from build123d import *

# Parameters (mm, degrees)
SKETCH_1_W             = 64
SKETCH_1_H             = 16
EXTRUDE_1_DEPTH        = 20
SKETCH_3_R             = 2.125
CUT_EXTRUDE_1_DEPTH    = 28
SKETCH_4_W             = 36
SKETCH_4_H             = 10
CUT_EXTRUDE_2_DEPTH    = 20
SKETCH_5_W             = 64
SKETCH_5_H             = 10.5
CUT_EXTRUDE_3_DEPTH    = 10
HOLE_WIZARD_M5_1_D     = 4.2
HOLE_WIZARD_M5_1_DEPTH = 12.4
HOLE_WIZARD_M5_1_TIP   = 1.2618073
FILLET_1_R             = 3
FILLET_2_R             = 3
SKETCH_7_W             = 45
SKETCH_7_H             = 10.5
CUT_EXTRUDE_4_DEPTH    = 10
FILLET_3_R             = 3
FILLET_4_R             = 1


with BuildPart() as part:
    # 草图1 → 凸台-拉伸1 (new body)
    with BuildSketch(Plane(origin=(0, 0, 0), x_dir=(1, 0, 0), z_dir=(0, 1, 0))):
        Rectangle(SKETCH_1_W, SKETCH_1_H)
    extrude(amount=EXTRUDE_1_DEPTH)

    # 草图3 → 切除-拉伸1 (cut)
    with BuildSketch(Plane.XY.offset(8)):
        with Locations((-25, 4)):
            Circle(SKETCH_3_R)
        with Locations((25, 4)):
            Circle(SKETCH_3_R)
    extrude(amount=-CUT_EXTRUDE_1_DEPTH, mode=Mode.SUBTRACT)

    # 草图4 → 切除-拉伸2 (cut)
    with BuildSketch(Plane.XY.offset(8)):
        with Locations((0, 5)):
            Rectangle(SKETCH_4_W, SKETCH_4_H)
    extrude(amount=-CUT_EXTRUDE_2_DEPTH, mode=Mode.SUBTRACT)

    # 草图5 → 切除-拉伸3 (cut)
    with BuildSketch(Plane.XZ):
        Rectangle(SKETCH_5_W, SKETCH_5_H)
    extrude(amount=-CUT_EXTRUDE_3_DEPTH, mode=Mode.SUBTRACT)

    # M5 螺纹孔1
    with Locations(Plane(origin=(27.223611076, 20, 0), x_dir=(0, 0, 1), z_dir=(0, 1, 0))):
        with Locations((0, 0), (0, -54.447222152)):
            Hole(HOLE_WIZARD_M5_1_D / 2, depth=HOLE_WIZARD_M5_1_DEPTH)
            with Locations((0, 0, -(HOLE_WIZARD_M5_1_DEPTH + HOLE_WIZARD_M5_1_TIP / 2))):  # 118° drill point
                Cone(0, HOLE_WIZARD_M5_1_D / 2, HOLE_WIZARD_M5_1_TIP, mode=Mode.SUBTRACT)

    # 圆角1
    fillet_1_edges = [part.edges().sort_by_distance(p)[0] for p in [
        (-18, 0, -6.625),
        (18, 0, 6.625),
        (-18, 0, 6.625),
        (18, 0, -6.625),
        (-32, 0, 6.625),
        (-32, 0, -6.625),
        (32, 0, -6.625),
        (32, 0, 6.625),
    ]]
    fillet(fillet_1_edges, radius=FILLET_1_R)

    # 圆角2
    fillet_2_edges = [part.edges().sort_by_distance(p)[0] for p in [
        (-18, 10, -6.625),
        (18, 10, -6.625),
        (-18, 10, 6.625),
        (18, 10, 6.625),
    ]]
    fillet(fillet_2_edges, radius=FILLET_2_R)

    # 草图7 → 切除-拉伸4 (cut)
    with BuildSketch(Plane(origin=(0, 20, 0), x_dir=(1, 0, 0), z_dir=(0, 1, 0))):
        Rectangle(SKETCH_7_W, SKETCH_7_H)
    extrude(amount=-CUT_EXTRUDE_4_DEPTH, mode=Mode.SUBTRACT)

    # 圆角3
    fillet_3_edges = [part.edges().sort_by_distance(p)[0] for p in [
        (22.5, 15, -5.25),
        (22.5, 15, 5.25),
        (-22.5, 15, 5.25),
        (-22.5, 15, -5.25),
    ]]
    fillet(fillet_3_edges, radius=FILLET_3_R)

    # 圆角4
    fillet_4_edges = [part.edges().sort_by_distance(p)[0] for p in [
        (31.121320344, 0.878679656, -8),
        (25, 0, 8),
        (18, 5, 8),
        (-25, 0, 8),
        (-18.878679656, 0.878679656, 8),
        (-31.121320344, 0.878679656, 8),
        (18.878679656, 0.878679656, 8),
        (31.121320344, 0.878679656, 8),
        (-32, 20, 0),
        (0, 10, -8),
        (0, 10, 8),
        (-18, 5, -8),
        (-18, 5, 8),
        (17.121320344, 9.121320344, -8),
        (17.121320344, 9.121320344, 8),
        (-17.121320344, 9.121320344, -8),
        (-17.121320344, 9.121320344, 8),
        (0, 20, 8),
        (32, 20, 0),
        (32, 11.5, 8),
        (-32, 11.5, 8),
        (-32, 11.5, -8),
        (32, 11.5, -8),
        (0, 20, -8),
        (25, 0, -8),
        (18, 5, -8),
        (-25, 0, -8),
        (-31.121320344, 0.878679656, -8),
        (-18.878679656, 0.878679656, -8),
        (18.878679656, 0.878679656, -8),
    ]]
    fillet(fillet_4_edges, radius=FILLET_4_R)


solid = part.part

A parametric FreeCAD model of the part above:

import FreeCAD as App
import Part
import Sketcher


def edges_at(feature, points):
    """Names of the edges that pass closest to the given points."""
    edges = feature.Shape.Edges
    near = lambda p: min(range(len(edges)), key=lambda i: edges[i].distToShape(Part.Vertex(*p))[0])
    return sorted({f"Edge{near(p) + 1}" for p in points})

doc = App.newDocument("Part")
body = doc.addObject("PartDesign::Body", "Body")

# Sketch on XZ plane
sketch1 = doc.addObject("Sketcher::SketchObject", "Sketch")
body.addObject(sketch1)
sketch1.AttachmentSupport = (doc.XZ_Plane, [""])
sketch1.MapMode = "FlatFace"
sketch1.addGeometry(Part.LineSegment(App.Vector(-32, -8, 0), App.Vector(-32, 8, 0)), False)
sketch1.addGeometry(Part.LineSegment(App.Vector(-32, 8, 0), App.Vector(32, 8, 0)), False)
sketch1.addGeometry(Part.LineSegment(App.Vector(32, 8, 0), App.Vector(32, -8, 0)), False)
sketch1.addGeometry(Part.LineSegment(App.Vector(32, -8, 0), App.Vector(-32, -8, 0)), False)
sketch1.addConstraint(Sketcher.Constraint("Coincident", 0, 2, 1, 1))
sketch1.addConstraint(Sketcher.Constraint("Coincident", 1, 2, 2, 1))
sketch1.addConstraint(Sketcher.Constraint("Coincident", 2, 2, 3, 1))
sketch1.addConstraint(Sketcher.Constraint("Coincident", 3, 2, 0, 1))
sketch1.addConstraint(Sketcher.Constraint("Vertical", 0))
sketch1.addConstraint(Sketcher.Constraint("Horizontal", 1))
sketch1.addConstraint(Sketcher.Constraint("Vertical", 2))
sketch1.addConstraint(Sketcher.Constraint("Horizontal", 3))
sketch1.addConstraint(Sketcher.Constraint("Symmetric", 0, 2, 2, 2, -1, 1))
sketch1.addConstraint(Sketcher.Constraint("DistanceX", 1, 1, 1, 2, 64.0))
sketch1.addConstraint(Sketcher.Constraint("DistanceY", 0, 1, 0, 2, 16.0))
pad1 = doc.addObject("PartDesign::Pad", "Pad")
body.addObject(pad1)
pad1.Profile = sketch1
pad1.Length = 20
pad1.Reversed = True

# Sketch on XY plane
sketch2 = doc.addObject("Sketcher::SketchObject", "Sketch001")
body.addObject(sketch2)
sketch2.AttachmentSupport = (doc.XY_Plane, [""])
sketch2.MapMode = "FlatFace"
sketch2.AttachmentOffset = App.Placement(App.Vector(0, 0, 8), App.Rotation())
sketch2.addGeometry(Part.Circle(App.Vector(-25, 4, 0), App.Vector(0, 0, 1), 2.1), False)
sketch2.addGeometry(Part.Circle(App.Vector(25, 4, 0), App.Vector(0, 0, 1), 2.1), False)
sketch2.addConstraint(Sketcher.Constraint("Equal", 0, 1))
sketch2.addConstraint(Sketcher.Constraint("Symmetric", 0, 3, 1, 3, -2))
sketch2.addConstraint(Sketcher.Constraint("Diameter", 0, 4.25))
sketch2.addConstraint(Sketcher.Constraint("DistanceX", 0, 3, -1, 1, 25.0))
sketch2.addConstraint(Sketcher.Constraint("DistanceY", -1, 1, 0, 3, 4.0))
pocket1 = doc.addObject("PartDesign::Pocket", "Pocket")
body.addObject(pocket1)
pocket1.Profile = sketch2
pocket1.Length = 28

# Sketch on XY plane
sketch3 = doc.addObject("Sketcher::SketchObject", "Sketch002")
body.addObject(sketch3)
sketch3.AttachmentSupport = (doc.XY_Plane, [""])
sketch3.MapMode = "FlatFace"
sketch3.AttachmentOffset = App.Placement(App.Vector(0, 0, 8), App.Rotation())
sketch3.addGeometry(Part.LineSegment(App.Vector(-18, 10, 0), App.Vector(-18, 0, 0)), False)
sketch3.addGeometry(Part.LineSegment(App.Vector(-18, 0, 0), App.Vector(18, 0, 0)), False)
sketch3.addGeometry(Part.LineSegment(App.Vector(18, 0, 0), App.Vector(18, 10, 0)), False)
sketch3.addGeometry(Part.LineSegment(App.Vector(18, 10, 0), App.Vector(-18, 10, 0)), False)
sketch3.addConstraint(Sketcher.Constraint("Coincident", 0, 2, 1, 1))
sketch3.addConstraint(Sketcher.Constraint("Coincident", 1, 2, 2, 1))
sketch3.addConstraint(Sketcher.Constraint("Coincident", 2, 2, 3, 1))
sketch3.addConstraint(Sketcher.Constraint("Coincident", 3, 2, 0, 1))
sketch3.addConstraint(Sketcher.Constraint("Vertical", 0))
sketch3.addConstraint(Sketcher.Constraint("Horizontal", 1))
sketch3.addConstraint(Sketcher.Constraint("Vertical", 2))
sketch3.addConstraint(Sketcher.Constraint("Horizontal", 3))
sketch3.addConstraint(Sketcher.Constraint("Symmetric", 0, 2, 1, 2, -1, 1))
sketch3.addConstraint(Sketcher.Constraint("DistanceX", 1, 1, 1, 2, 36.0))
sketch3.addConstraint(Sketcher.Constraint("DistanceY", 0, 2, 0, 1, 10.0))
pocket2 = doc.addObject("PartDesign::Pocket", "Pocket001")
body.addObject(pocket2)
pocket2.Profile = sketch3
pocket2.Length = 20

# Sketch on XZ plane
sketch4 = doc.addObject("Sketcher::SketchObject", "Sketch003")
body.addObject(sketch4)
sketch4.AttachmentSupport = (doc.XZ_Plane, [""])
sketch4.MapMode = "FlatFace"
sketch4.addGeometry(Part.LineSegment(App.Vector(-32, 5, 0), App.Vector(-32, -5, 0)), False)
sketch4.addGeometry(Part.LineSegment(App.Vector(-32, -5, 0), App.Vector(32, -5, 0)), False)
sketch4.addGeometry(Part.LineSegment(App.Vector(32, -5, 0), App.Vector(32, 5, 0)), False)
sketch4.addGeometry(Part.LineSegment(App.Vector(32, 5, 0), App.Vector(-32, 5, 0)), False)
sketch4.addConstraint(Sketcher.Constraint("Coincident", 0, 2, 1, 1))
sketch4.addConstraint(Sketcher.Constraint("Coincident", 1, 2, 2, 1))
sketch4.addConstraint(Sketcher.Constraint("Coincident", 2, 2, 3, 1))
sketch4.addConstraint(Sketcher.Constraint("Coincident", 3, 2, 0, 1))
sketch4.addConstraint(Sketcher.Constraint("Vertical", 0))
sketch4.addConstraint(Sketcher.Constraint("Horizontal", 1))
sketch4.addConstraint(Sketcher.Constraint("Vertical", 2))
sketch4.addConstraint(Sketcher.Constraint("Horizontal", 3))
sketch4.addConstraint(Sketcher.Constraint("Symmetric", 0, 2, 2, 2, -1, 1))
sketch4.addConstraint(Sketcher.Constraint("DistanceX", 1, 1, 1, 2, 64.0))
sketch4.addConstraint(Sketcher.Constraint("DistanceY", 0, 2, 0, 1, 10.5))
pocket3 = doc.addObject("PartDesign::Pocket", "Pocket002")
body.addObject(pocket3)
pocket3.Profile = sketch4
pocket3.Length = 10

# Sketch on XZ plane
sketch5 = doc.addObject("Sketcher::SketchObject", "Sketch004")
body.addObject(sketch5)
sketch5.AttachmentSupport = (doc.XZ_Plane, [""])
sketch5.MapMode = "FlatFace"
sketch5.AttachmentOffset = App.Placement(App.Vector(0, 0, -20), App.Rotation())
sketch5.addGeometry(Part.Circle(App.Vector(27.2, 0, 0), App.Vector(0, 0, 1), 2.1), False)
sketch5.addGeometry(Part.Circle(App.Vector(-27.2, 0, 0), App.Vector(0, 0, 1), 2.1), False)
sketch5.addConstraint(Sketcher.Constraint("Equal", 0, 1))
sketch5.addConstraint(Sketcher.Constraint("Symmetric", 0, 3, 1, 3, -1, 1))
sketch5.addConstraint(Sketcher.Constraint("PointOnObject", 0, 3, -1))
sketch5.addConstraint(Sketcher.Constraint("Diameter", 0, 4.2))
sketch5.addConstraint(Sketcher.Constraint("DistanceX", -1, 1, 0, 3, 27.223611))
doc.recompute()
hole = doc.addObject("PartDesign::Hole", "Hole")
body.addObject(hole)
hole.Profile = sketch5
hole.ThreadType = "None"
hole.Diameter = 4.2
hole.DepthType = "Dimension"
hole.Depth = 12.4
hole.DrillPoint = "Angled"
hole.DrillPointAngle = 118
hole.Reversed = True
doc.recompute()

fillet = doc.addObject("PartDesign::Fillet", "Fillet")
body.addObject(fillet)
fillet.Base = (hole, edges_at(hole, [
    (-18, 0, -6.625),
    (18, 0, 6.625),
    (-18, 0, 6.625),
    (18, 0, -6.625),
    (-32, 0, 6.625),
    (-32, 0, -6.625),
    (32, 0, -6.625),
    (32, 0, 6.625),
]))
fillet.Radius = 3
doc.recompute()

fillet2 = doc.addObject("PartDesign::Fillet", "Fillet001")
body.addObject(fillet2)
fillet2.Base = (fillet, edges_at(fillet, [
    (-18, 10, -6.625),
    (18, 10, -6.625),
    (-18, 10, 6.625),
    (18, 10, 6.625),
]))
fillet2.Radius = 3

# Sketch on XZ plane
sketch6 = doc.addObject("Sketcher::SketchObject", "Sketch005")
body.addObject(sketch6)
sketch6.AttachmentSupport = (doc.XZ_Plane, [""])
sketch6.MapMode = "FlatFace"
sketch6.AttachmentOffset = App.Placement(App.Vector(0, 0, -20), App.Rotation())
sketch6.addGeometry(Part.LineSegment(App.Vector(-22, -5, 0), App.Vector(-22, 5, 0)), False)
sketch6.addGeometry(Part.LineSegment(App.Vector(-22, 5, 0), App.Vector(22, 5, 0)), False)
sketch6.addGeometry(Part.LineSegment(App.Vector(22, 5, 0), App.Vector(22, -5, 0)), False)
sketch6.addGeometry(Part.LineSegment(App.Vector(22, -5, 0), App.Vector(-22, -5, 0)), False)
sketch6.addConstraint(Sketcher.Constraint("Coincident", 0, 2, 1, 1))
sketch6.addConstraint(Sketcher.Constraint("Coincident", 1, 2, 2, 1))
sketch6.addConstraint(Sketcher.Constraint("Coincident", 2, 2, 3, 1))
sketch6.addConstraint(Sketcher.Constraint("Coincident", 3, 2, 0, 1))
sketch6.addConstraint(Sketcher.Constraint("Vertical", 0))
sketch6.addConstraint(Sketcher.Constraint("Horizontal", 1))
sketch6.addConstraint(Sketcher.Constraint("Vertical", 2))
sketch6.addConstraint(Sketcher.Constraint("Horizontal", 3))
sketch6.addConstraint(Sketcher.Constraint("Symmetric", 0, 2, 2, 2, -1, 1))
sketch6.addConstraint(Sketcher.Constraint("DistanceX", 1, 1, 1, 2, 45.0))
sketch6.addConstraint(Sketcher.Constraint("DistanceY", 0, 1, 0, 2, 10.5))
pocket4 = doc.addObject("PartDesign::Pocket", "Pocket003")
body.addObject(pocket4)
pocket4.Profile = sketch6
pocket4.Length = 10
pocket4.Reversed = True
doc.recompute()

fillet3 = doc.addObject("PartDesign::Fillet", "Fillet002")
body.addObject(fillet3)
fillet3.Base = (pocket4, edges_at(pocket4, [
    (22.5, 15, -5.25),
    (22.5, 15, 5.25),
    (-22.5, 15, 5.25),
    (-22.5, 15, -5.25),
]))
fillet3.Radius = 3
doc.recompute()

fillet4 = doc.addObject("PartDesign::Fillet", "Fillet003")
body.addObject(fillet4)
fillet4.Base = (fillet3, edges_at(fillet3, [
    (31.121, 0.879, -8),
    (25, 0, 8),
    (18, 5, 8),
    (-25, 0, 8),
    (-18.879, 0.879, 8),
    (-31.121, 0.879, 8),
    (18.879, 0.879, 8),
    (31.121, 0.879, 8),
    (-32, 20, 0),
    (0, 10, -8),
    (0, 10, 8),
    (-18, 5, -8),
    (-18, 5, 8),
    (17.121, 9.121, -8),
    (17.121, 9.121, 8),
    (-17.121, 9.121, -8),
    (-17.121, 9.121, 8),
    (0, 20, 8),
    (32, 20, 0),
    (32, 11.5, 8),
    (-32, 11.5, 8),
    (-32, 11.5, -8),
    (32, 11.5, -8),
    (0, 20, -8),
    (25, 0, -8),
    (18, 5, -8),
    (-25, 0, -8),
    (-31.121, 0.879, -8),
    (-18.879, 0.879, -8),
    (18.879, 0.879, -8),
]))
fillet4.Radius = 1

doc.recompute()
